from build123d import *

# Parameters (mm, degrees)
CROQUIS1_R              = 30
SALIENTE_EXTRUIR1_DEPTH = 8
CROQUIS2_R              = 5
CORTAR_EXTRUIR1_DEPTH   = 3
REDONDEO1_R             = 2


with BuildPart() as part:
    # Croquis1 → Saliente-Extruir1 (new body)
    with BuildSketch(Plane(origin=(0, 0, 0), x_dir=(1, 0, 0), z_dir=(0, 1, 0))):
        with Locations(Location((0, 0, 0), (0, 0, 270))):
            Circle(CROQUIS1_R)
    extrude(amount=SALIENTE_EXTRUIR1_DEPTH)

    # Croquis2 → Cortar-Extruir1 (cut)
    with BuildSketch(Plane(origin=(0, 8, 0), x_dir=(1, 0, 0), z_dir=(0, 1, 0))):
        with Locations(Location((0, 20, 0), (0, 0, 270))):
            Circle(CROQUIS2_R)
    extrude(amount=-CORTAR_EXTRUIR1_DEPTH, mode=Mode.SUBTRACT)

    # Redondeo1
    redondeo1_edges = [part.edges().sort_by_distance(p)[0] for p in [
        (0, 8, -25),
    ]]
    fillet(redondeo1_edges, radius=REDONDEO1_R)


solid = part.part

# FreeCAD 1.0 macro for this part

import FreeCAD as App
import Part
import Sketcher
from FreeCAD import Vector


def edges_at(feature, points):
    """Names of the edges that pass closest to the given points."""
    edges = feature.Shape.Edges
    near = lambda p: min(range(len(edges)), key=lambda i: edges[i].distToShape(Part.Vertex(*p))[0])
    return sorted({f"Edge{near(p) + 1}" for p in points})

doc = App.newDocument("Part")
body = doc.addObject("PartDesign::Body", "Body")

# Sketch on XZ plane
sketch1 = body.newObject("Sketcher::SketchObject", "Sketch")
sketch1.AttachmentSupport = (doc.getObject("XZ_Plane"), [""])
sketch1.MapMode = "FlatFace"
sketch1.addGeometry(Part.Circle(Vector(0, 0, 0), Vector(0, 0, 1), 30), False)
sketch1.addConstraint(Sketcher.Constraint("Coincident", 0, 3, -1, 1))
sketch1.addConstraint(Sketcher.Constraint("Diameter", 0, 60.0))
pad1 = body.newObject("PartDesign::Pad", "Pad")
pad1.Profile = sketch1
pad1.Length = 8
pad1.Reversed = True

# Sketch on XZ plane
sketch2 = body.newObject("Sketcher::SketchObject", "Sketch001")
sketch2.AttachmentSupport = (doc.getObject("XZ_Plane"), [""])
sketch2.MapMode = "FlatFace"
sketch2.AttachmentOffset = App.Placement(Vector(0, 0, -8), App.Rotation())
sketch2.addGeometry(Part.Circle(Vector(0, -20, 0), Vector(0, 0, 1), 5), False)
sketch2.addConstraint(Sketcher.Constraint("PointOnObject", 0, 3, -2))
sketch2.addConstraint(Sketcher.Constraint("Diameter", 0, 10.0))
sketch2.addConstraint(Sketcher.Constraint("DistanceY", 0, 3, -1, 1, 20.0))
pocket1 = body.newObject("PartDesign::Pocket", "Pocket")
pocket1.Profile = sketch2
pocket1.Length = 3
pocket1.Reversed = True
doc.recompute()

fillet = body.newObject("PartDesign::Fillet", "Fillet")
fillet.Base = (pocket1, edges_at(pocket1, [(0, 8, -25)]))
fillet.Radius = 2

doc.recompute()
